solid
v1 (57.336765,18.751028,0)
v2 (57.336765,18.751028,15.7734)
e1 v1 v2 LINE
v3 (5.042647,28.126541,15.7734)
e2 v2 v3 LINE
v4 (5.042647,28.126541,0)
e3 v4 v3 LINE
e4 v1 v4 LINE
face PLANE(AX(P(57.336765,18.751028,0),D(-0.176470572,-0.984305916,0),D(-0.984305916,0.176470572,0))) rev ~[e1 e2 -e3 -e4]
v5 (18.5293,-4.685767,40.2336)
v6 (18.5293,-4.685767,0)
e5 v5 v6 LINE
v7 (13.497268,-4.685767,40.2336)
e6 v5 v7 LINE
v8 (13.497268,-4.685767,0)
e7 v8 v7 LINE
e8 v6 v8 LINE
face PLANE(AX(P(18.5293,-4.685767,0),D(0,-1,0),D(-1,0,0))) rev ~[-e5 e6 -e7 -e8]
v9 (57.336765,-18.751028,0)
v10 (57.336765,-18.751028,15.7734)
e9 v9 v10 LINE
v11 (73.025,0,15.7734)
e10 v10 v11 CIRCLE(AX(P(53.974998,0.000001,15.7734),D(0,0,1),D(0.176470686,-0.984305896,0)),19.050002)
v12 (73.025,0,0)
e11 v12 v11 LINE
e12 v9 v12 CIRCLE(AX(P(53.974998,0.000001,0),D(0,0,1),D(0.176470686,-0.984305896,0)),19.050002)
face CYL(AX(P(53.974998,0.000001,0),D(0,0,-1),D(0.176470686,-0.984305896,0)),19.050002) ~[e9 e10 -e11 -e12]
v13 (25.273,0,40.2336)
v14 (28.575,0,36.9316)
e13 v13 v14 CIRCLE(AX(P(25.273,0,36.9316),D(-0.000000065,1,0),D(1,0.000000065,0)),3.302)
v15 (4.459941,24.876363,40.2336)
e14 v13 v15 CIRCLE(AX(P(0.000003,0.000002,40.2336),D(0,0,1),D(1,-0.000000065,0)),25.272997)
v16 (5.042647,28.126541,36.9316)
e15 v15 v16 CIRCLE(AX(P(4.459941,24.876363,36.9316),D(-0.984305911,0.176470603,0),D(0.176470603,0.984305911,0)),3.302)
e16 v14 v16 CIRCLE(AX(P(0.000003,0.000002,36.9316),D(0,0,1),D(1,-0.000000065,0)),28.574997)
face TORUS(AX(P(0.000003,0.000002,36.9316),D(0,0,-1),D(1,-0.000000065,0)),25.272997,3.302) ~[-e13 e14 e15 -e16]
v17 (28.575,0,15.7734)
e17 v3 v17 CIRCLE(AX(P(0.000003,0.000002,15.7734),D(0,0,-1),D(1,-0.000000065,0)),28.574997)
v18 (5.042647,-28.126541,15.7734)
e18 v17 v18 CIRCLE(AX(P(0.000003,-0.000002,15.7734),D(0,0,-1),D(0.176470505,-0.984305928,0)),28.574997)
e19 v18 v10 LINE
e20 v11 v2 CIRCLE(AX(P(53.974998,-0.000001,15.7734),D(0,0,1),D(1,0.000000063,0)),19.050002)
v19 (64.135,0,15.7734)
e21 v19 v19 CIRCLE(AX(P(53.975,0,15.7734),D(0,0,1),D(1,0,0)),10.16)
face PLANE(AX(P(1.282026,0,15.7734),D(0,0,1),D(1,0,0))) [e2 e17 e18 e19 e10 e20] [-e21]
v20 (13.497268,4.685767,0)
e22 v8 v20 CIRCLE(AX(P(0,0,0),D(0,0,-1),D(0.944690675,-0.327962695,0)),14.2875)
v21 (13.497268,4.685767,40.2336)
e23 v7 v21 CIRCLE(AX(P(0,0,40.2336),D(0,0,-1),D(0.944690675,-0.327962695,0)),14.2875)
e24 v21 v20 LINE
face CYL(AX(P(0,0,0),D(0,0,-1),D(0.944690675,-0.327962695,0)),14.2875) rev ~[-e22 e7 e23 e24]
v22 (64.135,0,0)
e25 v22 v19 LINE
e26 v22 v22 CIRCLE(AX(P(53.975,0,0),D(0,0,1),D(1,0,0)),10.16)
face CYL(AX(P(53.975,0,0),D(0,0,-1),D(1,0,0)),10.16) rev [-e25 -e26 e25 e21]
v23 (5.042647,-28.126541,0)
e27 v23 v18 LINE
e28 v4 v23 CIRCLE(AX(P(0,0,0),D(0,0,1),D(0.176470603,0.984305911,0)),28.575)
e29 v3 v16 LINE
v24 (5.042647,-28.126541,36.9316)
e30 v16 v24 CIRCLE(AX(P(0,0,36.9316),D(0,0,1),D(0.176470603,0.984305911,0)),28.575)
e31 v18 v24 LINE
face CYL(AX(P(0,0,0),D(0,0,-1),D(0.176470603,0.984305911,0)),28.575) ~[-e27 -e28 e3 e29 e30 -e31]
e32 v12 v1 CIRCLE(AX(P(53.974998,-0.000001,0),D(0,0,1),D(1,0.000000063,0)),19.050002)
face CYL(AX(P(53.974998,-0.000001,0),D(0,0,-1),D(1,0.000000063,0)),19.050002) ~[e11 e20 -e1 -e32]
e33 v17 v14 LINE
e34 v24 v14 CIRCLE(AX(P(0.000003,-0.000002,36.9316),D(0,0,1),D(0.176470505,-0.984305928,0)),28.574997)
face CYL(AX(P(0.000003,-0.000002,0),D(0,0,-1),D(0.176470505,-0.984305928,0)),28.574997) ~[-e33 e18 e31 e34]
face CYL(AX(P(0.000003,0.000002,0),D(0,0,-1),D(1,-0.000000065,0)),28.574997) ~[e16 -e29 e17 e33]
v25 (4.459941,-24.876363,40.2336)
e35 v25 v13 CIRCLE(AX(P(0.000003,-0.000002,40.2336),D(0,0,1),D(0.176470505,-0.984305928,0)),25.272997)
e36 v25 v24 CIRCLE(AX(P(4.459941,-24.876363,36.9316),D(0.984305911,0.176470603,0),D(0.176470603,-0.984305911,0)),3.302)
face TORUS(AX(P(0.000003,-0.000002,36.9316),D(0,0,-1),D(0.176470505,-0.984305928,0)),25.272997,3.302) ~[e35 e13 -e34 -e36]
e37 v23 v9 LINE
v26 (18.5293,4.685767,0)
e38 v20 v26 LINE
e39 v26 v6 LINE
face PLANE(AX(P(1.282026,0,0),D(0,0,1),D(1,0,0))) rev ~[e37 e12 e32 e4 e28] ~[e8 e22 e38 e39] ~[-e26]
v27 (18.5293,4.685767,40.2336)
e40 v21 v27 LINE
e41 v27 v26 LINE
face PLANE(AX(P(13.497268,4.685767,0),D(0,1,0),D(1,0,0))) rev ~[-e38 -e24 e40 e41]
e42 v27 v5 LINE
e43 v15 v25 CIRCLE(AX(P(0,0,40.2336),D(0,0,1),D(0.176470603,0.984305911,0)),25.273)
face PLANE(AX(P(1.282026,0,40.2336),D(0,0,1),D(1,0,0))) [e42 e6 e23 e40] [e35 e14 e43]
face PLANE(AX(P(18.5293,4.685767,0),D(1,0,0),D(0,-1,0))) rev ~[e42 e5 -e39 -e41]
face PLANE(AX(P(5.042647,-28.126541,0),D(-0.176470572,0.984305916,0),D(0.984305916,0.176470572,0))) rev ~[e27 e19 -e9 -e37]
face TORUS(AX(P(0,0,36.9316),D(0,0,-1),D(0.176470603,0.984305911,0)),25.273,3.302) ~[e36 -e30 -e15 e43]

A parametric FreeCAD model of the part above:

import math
import FreeCAD as App
import Part
import Sketcher
from FreeCAD import Vector
Q = App.Units.Quantity


def edges_at(feature, points):
    """Names of the edges that pass closest to the given points."""
    edges = feature.Shape.Edges
    near = lambda p: min(range(len(edges)), key=lambda i: edges[i].distToShape(Part.Vertex(*p))[0])
    return sorted({f"Edge{near(p) + 1}" for p in points})

doc = App.newDocument("Part")
body = doc.addObject("PartDesign::Body", "Body")

sketch1 = body.newObject("Sketcher::SketchObject", "Sketch")
sketch1.AttachmentSupport = (doc.getObject("XY_Plane"), [""])
sketch1.MapMode = "FlatFace"
sketch1.addGeometry(Part.ArcOfCircle(Part.Circle(Vector(0.000003, -0.000002, 0), Vector(0, 0, 1), 28.574997), math.radians(-79.835756), math.radians(0.000004)), False)
sketch1.addGeometry(Part.ArcOfCircle(Part.Circle(Vector(0.000003, 0.000002, 0), Vector(0, 0, 1), 28.574997), math.radians(-0.000004), math.radians(79.835756)), False)
sketch1.addGeometry(Part.ArcOfCircle(Part.Circle(Vector(0, 0, 0), Vector(0, 0, 1), 28.575), math.radians(79.835751), math.radians(280.164249)), False)
sketch1.addGeometry(Part.LineSegment(Vector(18.5293, -4.685767, 0), Vector(13.497268, -4.685767, 0)), False)
sketch1.addGeometry(Part.ArcOfCircle(Part.Circle(Vector(0, 0, 0), Vector(0, 0, 1), 14.2875), math.radians(19.145166), math.radians(340.854834)), False)
sketch1.addGeometry(Part.LineSegment(Vector(13.497268, 4.685767, 0), Vector(18.5293, 4.685767, 0)), False)
sketch1.addGeometry(Part.LineSegment(Vector(18.5293, 4.685767, 0), Vector(18.5293, -4.685767, 0)), False)
sketch1.addConstraint(Sketcher.Constraint("Tangent", 0, 2, 1, 1))
sketch1.addConstraint(Sketcher.Constraint("Tangent", 1, 2, 2, 1))
sketch1.addConstraint(Sketcher.Constraint("Tangent", 2, 2, 0, 1))
sketch1.addConstraint(Sketcher.Constraint("Coincident", 3, 2, 4, 2))
sketch1.addConstraint(Sketcher.Constraint("Coincident", 4, 1, 5, 1))
sketch1.addConstraint(Sketcher.Constraint("Coincident", 5, 2, 6, 1))
sketch1.addConstraint(Sketcher.Constraint("Coincident", 6, 2, 3, 1))
sketch1.addConstraint(Sketcher.Constraint("Horizontal", 3))
sketch1.addConstraint(Sketcher.Constraint("Horizontal", 5))
sketch1.addConstraint(Sketcher.Constraint("Vertical", 6))
sketch1.addConstraint(Sketcher.Constraint("Coincident", 0, 3, -1, 1))
sketch1.addConstraint(Sketcher.Constraint("Coincident", 4, 3, -1, 1))
sketch1.addConstraint(Sketcher.Constraint("PointOnObject", 0, 2, -1))
sketch1.addConstraint(Sketcher.Constraint("Vertical", 1, 2, 2, 2))
sketch1.addConstraint(Sketcher.Constraint("Vertical", 3, 2, 4, 1))
sketch1.addConstraint(Sketcher.Constraint("Radius", 0, Q("1.1249999 in")))
sketch1.addConstraint(Sketcher.Constraint("Radius", 4, Q("0.5625 in")))
sketch1.addConstraint(Sketcher.Constraint("DistanceX", -1, 1, 5, 2, Q("0.7295 in")))
sketch1.addConstraint(Sketcher.Constraint("DistanceX", 3, 2, 3, 1, Q("5.032032 mm")))
sketch1.addConstraint(Sketcher.Constraint("DistanceY", -1, 1, 1, 2, Q("28.126541 mm")))
pad1 = body.newObject("PartDesign::Pad", "Pad")
pad1.Profile = sketch1
pad1.Length = Q("1.584 in")

sketch2 = body.newObject("Sketcher::SketchObject", "Sketch001")
sketch2.AttachmentSupport = (doc.getObject("XY_Plane"), [""])
sketch2.MapMode = "FlatFace"
sketch2.addGeometry(Part.ArcOfCircle(Part.Circle(Vector(0, 0, 0), Vector(0, 0, 1), 28.575), math.radians(79.835751), math.radians(280.164249)), False)
sketch2.addGeometry(Part.LineSegment(Vector(5.042647, -28.126541, 0), Vector(57.336765, -18.751028, 0)), False)
sketch2.addGeometry(Part.ArcOfCircle(Part.Circle(Vector(53.974998, 0.000001, 0), Vector(0, 0, 1), 19.050002), math.radians(-79.835746), math.radians(-0.000004)), False)
sketch2.addGeometry(Part.ArcOfCircle(Part.Circle(Vector(53.974998, -0.000001, 0), Vector(0, 0, 1), 19.050002), math.radians(0.000004), math.radians(79.835746)), False)
sketch2.addGeometry(Part.LineSegment(Vector(57.336765, 18.751028, 0), Vector(5.042647, 28.126541, 0)), False)
sketch2.addGeometry(Part.LineSegment(Vector(18.5293, -4.685767, 0), Vector(13.497268, -4.685767, 0)), False)
sketch2.addGeometry(Part.ArcOfCircle(Part.Circle(Vector(0, 0, 0), Vector(0, 0, 1), 14.2875), math.radians(19.145166), math.radians(340.854834)), False)
sketch2.addGeometry(Part.LineSegment(Vector(13.497268, 4.685767, 0), Vector(18.5293, 4.685767, 0)), False)
sketch2.addGeometry(Part.LineSegment(Vector(18.5293, 4.685767, 0), Vector(18.5293, -4.685767, 0)), False)
sketch2.addGeometry(Part.Circle(Vector(53.975, 0, 0), Vector(0, 0, 1), 10.16), False)
sketch2.addConstraint(Sketcher.Constraint("Tangent", 0, 2, 1, 1))
sketch2.addConstraint(Sketcher.Constraint("Tangent", 1, 2, 2, 1))
sketch2.addConstraint(Sketcher.Constraint("Tangent", 2, 2, 3, 1))
sketch2.addConstraint(Sketcher.Constraint("Tangent", 3, 2, 4, 1))
sketch2.addConstraint(Sketcher.Constraint("Tangent", 4, 2, 0, 1))
sketch2.addConstraint(Sketcher.Constraint("Coincident", 5, 2, 6, 2))
sketch2.addConstraint(Sketcher.Constraint("Coincident", 6, 1, 7, 1))
sketch2.addConstraint(Sketcher.Constraint("Coincident", 7, 2, 8, 1))
sketch2.addConstraint(Sketcher.Constraint("Coincident", 8, 2, 5, 1))
sketch2.addConstraint(Sketcher.Constraint("Horizontal", 5))
sketch2.addConstraint(Sketcher.Constraint("Horizontal", 7))
sketch2.addConstraint(Sketcher.Constraint("Vertical", 8))
sketch2.addConstraint(Sketcher.Constraint("Coincident", 0, 3, -1, 1))
sketch2.addConstraint(Sketcher.Constraint("Coincident", 6, 3, -1, 1))
sketch2.addConstraint(Sketcher.Constraint("Coincident", 9, 3, 2, 3))
sketch2.addConstraint(Sketcher.Constraint("Equal", 2, 3))
sketch2.addConstraint(Sketcher.Constraint("PointOnObject", 2, 3, -1))
sketch2.addConstraint(Sketcher.Constraint("PointOnObject", 2, 2, -1))
sketch2.addConstraint(Sketcher.Constraint("Vertical", 5, 2, 6, 1))
sketch2.addConstraint(Sketcher.Constraint("Diameter", 9, Q("0.8 in")))
sketch2.addConstraint(Sketcher.Constraint("Radius", 2, Q("0.7500001 in")))
sketch2.addConstraint(Sketcher.Constraint("Radius", 0, Q("1.125 in")))
sketch2.addConstraint(Sketcher.Constraint("Radius", 6, Q("0.5625 in")))
sketch2.addConstraint(Sketcher.Constraint("DistanceX", -1, 1, 2, 3, Q("2.1249999 in")))
sketch2.addConstraint(Sketcher.Constraint("DistanceX", -1, 1, 7, 2, Q("0.7295 in")))
sketch2.addConstraint(Sketcher.Constraint("DistanceX", 5, 2, 5, 1, Q("5.032032 mm")))
pad2 = body.newObject("PartDesign::Pad", "Pad001")
pad2.Profile = sketch2
pad2.Length = Q("0.621 in")
doc.recompute()

fillet = body.newObject("PartDesign::Fillet", "Fillet")
fillet.Base = (pad2, edges_at(pad2, [(-28.575, 0, 40.234)]))
fillet.Radius = Q("0.13 in")

doc.recompute()
